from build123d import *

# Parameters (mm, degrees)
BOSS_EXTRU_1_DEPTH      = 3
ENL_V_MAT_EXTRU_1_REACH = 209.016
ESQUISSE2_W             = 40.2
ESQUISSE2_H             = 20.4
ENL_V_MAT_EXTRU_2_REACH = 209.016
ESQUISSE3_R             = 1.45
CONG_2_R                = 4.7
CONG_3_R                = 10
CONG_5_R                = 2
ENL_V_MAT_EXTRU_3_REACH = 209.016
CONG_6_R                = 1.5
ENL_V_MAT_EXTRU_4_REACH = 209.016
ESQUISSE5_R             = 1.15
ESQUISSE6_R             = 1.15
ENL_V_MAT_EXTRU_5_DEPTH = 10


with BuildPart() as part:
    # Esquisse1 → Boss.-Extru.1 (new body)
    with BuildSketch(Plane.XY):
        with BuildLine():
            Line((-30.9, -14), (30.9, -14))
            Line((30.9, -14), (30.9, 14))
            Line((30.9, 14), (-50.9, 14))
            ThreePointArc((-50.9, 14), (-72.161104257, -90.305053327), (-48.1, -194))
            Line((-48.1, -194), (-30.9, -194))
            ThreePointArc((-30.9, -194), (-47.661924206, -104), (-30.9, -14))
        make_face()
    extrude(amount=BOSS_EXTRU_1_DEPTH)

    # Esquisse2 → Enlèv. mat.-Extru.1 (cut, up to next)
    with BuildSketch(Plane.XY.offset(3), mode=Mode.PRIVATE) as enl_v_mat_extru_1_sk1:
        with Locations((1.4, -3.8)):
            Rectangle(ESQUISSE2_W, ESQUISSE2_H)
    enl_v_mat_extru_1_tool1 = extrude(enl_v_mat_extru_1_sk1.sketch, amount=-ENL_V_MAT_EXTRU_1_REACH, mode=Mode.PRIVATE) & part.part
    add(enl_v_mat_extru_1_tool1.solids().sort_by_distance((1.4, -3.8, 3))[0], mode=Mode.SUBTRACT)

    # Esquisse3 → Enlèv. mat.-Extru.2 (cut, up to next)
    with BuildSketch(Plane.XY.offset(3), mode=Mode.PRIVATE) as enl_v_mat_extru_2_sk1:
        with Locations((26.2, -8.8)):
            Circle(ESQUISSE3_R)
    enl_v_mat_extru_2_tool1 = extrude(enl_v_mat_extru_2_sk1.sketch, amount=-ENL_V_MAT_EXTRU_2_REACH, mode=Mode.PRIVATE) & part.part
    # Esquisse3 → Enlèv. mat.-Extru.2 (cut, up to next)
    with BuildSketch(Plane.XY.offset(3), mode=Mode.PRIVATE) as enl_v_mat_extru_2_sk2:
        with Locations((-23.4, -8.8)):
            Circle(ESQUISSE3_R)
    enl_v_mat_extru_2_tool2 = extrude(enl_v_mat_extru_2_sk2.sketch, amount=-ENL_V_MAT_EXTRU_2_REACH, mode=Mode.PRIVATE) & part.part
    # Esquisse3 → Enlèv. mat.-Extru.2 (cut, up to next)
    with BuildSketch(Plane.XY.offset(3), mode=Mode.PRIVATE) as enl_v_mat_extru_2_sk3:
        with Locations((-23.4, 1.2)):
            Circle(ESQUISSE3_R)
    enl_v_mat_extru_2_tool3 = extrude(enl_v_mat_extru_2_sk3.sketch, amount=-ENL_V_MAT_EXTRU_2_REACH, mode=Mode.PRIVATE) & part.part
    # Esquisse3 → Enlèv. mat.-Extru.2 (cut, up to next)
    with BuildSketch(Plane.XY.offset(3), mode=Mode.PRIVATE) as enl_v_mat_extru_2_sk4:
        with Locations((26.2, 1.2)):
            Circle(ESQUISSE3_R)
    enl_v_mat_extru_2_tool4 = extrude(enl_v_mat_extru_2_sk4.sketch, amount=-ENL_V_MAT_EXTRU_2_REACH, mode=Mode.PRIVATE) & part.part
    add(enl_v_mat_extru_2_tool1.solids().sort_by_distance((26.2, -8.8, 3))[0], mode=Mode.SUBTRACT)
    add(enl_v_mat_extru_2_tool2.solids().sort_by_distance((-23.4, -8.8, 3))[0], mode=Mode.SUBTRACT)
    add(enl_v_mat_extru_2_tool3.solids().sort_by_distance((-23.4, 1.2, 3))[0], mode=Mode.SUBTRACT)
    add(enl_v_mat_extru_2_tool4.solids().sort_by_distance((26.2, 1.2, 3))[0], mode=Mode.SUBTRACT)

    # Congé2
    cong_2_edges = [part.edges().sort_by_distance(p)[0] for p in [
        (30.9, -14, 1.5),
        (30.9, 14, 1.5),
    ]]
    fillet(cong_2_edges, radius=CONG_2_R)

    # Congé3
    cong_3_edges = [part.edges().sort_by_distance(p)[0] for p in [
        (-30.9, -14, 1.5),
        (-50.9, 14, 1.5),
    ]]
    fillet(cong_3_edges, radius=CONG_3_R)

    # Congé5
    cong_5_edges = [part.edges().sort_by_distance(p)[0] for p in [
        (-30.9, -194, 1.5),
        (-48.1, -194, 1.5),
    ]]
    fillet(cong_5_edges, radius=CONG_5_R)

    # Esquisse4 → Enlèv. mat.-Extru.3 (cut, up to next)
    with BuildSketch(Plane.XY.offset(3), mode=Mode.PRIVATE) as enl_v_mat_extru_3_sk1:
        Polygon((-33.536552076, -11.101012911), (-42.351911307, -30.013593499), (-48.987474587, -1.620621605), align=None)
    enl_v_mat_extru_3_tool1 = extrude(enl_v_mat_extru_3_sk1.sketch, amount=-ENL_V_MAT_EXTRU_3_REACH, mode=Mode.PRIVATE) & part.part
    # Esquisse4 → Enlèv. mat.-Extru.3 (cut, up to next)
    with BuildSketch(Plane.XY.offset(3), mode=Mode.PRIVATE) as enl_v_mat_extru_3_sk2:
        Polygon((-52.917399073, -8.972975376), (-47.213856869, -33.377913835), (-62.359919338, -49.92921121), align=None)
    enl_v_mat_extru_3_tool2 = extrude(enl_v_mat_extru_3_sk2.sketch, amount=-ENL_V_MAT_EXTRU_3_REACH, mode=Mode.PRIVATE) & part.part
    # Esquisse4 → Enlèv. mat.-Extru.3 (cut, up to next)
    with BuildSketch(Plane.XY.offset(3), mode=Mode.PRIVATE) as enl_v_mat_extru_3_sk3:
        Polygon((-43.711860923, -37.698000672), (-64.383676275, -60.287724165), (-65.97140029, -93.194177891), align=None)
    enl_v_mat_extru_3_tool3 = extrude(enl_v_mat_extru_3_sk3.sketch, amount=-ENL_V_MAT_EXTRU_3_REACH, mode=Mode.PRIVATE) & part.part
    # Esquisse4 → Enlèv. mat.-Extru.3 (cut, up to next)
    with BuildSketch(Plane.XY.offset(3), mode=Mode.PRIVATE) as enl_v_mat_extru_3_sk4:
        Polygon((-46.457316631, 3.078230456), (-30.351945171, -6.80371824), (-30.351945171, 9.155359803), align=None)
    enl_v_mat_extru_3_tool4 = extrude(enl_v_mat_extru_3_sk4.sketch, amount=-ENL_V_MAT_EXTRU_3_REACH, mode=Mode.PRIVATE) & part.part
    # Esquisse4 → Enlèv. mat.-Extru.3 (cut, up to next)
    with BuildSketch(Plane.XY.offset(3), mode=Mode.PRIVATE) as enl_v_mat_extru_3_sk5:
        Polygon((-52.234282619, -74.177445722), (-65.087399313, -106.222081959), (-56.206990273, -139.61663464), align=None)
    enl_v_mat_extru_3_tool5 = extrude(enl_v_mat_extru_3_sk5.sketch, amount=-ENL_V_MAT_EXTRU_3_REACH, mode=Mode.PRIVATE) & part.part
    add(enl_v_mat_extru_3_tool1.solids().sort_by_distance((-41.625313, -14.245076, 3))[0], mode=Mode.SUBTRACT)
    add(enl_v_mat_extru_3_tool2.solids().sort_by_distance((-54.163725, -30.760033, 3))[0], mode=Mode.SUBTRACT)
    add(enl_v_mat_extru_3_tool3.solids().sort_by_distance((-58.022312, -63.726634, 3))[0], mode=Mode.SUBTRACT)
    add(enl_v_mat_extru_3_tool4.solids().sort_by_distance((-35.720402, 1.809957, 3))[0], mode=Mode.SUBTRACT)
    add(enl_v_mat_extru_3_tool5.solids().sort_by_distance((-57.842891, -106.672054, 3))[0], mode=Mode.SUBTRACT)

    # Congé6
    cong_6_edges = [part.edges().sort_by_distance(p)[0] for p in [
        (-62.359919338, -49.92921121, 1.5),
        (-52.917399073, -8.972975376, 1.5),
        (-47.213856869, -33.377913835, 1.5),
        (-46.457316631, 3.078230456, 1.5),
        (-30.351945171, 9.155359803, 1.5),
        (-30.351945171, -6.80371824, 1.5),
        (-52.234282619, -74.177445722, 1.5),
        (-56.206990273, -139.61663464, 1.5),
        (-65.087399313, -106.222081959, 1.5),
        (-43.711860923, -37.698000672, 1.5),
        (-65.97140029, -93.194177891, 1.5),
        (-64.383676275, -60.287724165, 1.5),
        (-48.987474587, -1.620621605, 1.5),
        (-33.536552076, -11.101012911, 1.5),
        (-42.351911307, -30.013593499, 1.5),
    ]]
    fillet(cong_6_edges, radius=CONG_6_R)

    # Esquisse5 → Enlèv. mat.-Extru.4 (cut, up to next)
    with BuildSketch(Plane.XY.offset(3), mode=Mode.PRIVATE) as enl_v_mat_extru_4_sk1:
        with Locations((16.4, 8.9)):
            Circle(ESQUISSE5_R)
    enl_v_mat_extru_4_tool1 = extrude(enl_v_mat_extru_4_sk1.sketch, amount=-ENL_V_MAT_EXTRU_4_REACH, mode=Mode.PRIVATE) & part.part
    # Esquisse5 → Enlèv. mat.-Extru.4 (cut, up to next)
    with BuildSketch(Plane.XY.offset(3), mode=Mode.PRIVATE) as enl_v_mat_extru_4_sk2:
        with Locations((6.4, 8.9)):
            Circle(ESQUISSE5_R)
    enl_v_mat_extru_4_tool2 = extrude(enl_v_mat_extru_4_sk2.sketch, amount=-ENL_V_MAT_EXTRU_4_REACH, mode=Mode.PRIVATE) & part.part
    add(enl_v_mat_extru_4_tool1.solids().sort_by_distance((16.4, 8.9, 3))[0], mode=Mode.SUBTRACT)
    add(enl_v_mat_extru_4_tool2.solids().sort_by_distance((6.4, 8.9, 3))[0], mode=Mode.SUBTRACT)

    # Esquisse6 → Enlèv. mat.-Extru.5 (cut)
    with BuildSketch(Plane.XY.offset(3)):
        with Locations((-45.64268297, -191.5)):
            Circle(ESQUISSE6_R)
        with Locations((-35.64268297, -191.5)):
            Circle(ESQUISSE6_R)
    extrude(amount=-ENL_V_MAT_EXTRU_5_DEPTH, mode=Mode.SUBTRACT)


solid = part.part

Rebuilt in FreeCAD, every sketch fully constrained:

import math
import FreeCAD as App
import Part
import Sketcher
from FreeCAD import Vector
Q = App.Units.Quantity


def edges_at(feature, points):
    """Names of the edges that pass closest to the given points."""
    edges = feature.Shape.Edges
    near = lambda p: min(range(len(edges)), key=lambda i: edges[i].distToShape(Part.Vertex(*p))[0])
    return sorted({f"Edge{near(p) + 1}" for p in points})


def add_polygon(sketch, points):
    """Adds a closed chain of lines whose ends are joined by coincident constraints."""
    first, n = sketch.GeometryCount, len(points)
    for a, b in zip(points, points[1:] + points[:1]):
        sketch.addGeometry(Part.LineSegment(App.Vector(*a, 0), App.Vector(*b, 0)), False)
    for i in range(n):
        sketch.addConstraint(Sketcher.Constraint("Coincident", first + i, 2, first + (i + 1) % n, 1))

doc = App.newDocument("Part")
params = doc.addObject("Spreadsheet::Sheet", "Params")
for row, (alias, value) in enumerate([
    ("sketch1_radius", "250 mm"),
    ("sketch1_height", "28 mm"),
    ("sketch1_width", "61.8 mm"),
    ("sketch1_width2", "81.8 mm"),
    ("sketch1_width3", "17.2 mm"),
    ("pad1_length", "3 mm"),
    ("sketch2_width", "40.2 mm"),
    ("sketch2_height", "20.4 mm"),
    ("sketch3_diameter", "2.9 mm"),
    ("sketch4_diameter", "2.9 mm"),
    ("sketch5_diameter", "2.9 mm"),
    ("sketch6_diameter", "2.9 mm"),
    ("fillet_radius", "4.7 mm"),
    ("fillet2_radius", "10 mm"),
    ("fillet3_radius", "2 mm"),
    ("fillet4_radius", "1.5 mm"),
    ("sketch12_diameter", "2.3 mm"),
    ("sketch13_diameter", "2.3 mm"),
    ("sketch14_diameter", "2.3 mm"),
    ("pocket13_length", "10 mm"),
], start=1):
    params.set(f"A{row}", alias)
    params.set(f"B{row}", "=" + value)
    params.setAlias(f"B{row}", alias)

body = doc.addObject("PartDesign::Body", "Body")

sketch1 = body.newObject("Sketcher::SketchObject", "Sketch")
sketch1.AttachmentSupport = (doc.getObject("XY_Plane"), [""])
sketch1.MapMode = "FlatFace"
sketch1.addGeometry([
    Part.LineSegment(Vector(-31, -14, 0), Vector(31, -14, 0)),
    Part.LineSegment(Vector(31, -14, 0), Vector(31, 14, 0)),
    Part.LineSegment(Vector(31, 14, 0), Vector(-51, 14, 0)),
    Part.ArcOfCircle(Part.Circle(Vector(178, -87, 0), Vector(0, 0, 1), 250), math.radians(156), math.radians(205)),
    Part.LineSegment(Vector(-48, -194, 0), Vector(-31, -194, 0)),
    Part.ArcOfCircle(Part.Circle(Vector(202, -104, 0), Vector(0, 0, 1), 250), math.radians(159), math.radians(201)),
], False)
sketch1.addConstraint([
    Sketcher.Constraint("Coincident", 0, 2, 1, 1),
    Sketcher.Constraint("Coincident", 1, 2, 2, 1),
    Sketcher.Constraint("Coincident", 2, 2, 3, 1),
    Sketcher.Constraint("Coincident", 3, 2, 4, 1),
    Sketcher.Constraint("Coincident", 4, 2, 5, 2),
    Sketcher.Constraint("Coincident", 5, 1, 0, 1),
    Sketcher.Constraint("Horizontal", 0),
    Sketcher.Constraint("Vertical", 1),
    Sketcher.Constraint("Horizontal", 2),
    Sketcher.Constraint("Horizontal", 4),
    Sketcher.Constraint("Equal", 3, 5),
    Sketcher.Constraint("Symmetric", 1, 2, 5, 1, -1, 1),
    Sketcher.Constraint("Vertical", 4, 2, 5, 1),
    Sketcher.Constraint("Radius", 3, Q("250 mm")),
    Sketcher.Constraint("DistanceY", 1, 1, 1, 2, Q("28 mm")),
    Sketcher.Constraint("DistanceX", 0, 1, 0, 2, Q("61.8 mm")),
    Sketcher.Constraint("DistanceX", 2, 2, 2, 1, Q("81.8 mm")),
    Sketcher.Constraint("DistanceX", 4, 1, 4, 2, Q("17.2 mm")),
    Sketcher.Constraint("DistanceY", 5, 3, -1, 1, Q("104 mm")),
])
sketch1.setExpression("Constraints[13]", "Params.sketch1_radius")
sketch1.setExpression("Constraints[14]", "Params.sketch1_height")
sketch1.setExpression("Constraints[15]", "Params.sketch1_width")
sketch1.setExpression("Constraints[16]", "Params.sketch1_width2")
sketch1.setExpression("Constraints[17]", "Params.sketch1_width3")
pad1 = body.newObject("PartDesign::Pad", "Pad")
pad1.Profile = sketch1
pad1.setExpression("Length", "Params.pad1_length")

sketch2 = body.newObject("Sketcher::SketchObject", "Sketch001")
sketch2.AttachmentSupport = (doc.getObject("XY_Plane"), [""])
sketch2.MapMode = "FlatFace"
sketch2.AttachmentOffset = App.Placement(Vector(0, 0, 3), App.Rotation())
add_polygon(sketch2, [(-19, 6), (-19, -14), (22, -14), (22, 6)])
sketch2.addConstraint([
    Sketcher.Constraint("Vertical", 0),
    Sketcher.Constraint("Horizontal", 1),
    Sketcher.Constraint("Vertical", 2),
    Sketcher.Constraint("Horizontal", 3),
    Sketcher.Constraint("DistanceX", 1, 1, 1, 2, Q("40.2 mm")),
    Sketcher.Constraint("DistanceY", 0, 2, 0, 1, Q("20.4 mm")),
    Sketcher.Constraint("DistanceY", 0, 2, -1, 1, Q("14 mm")),
    Sketcher.Constraint("DistanceX", 0, 2, -1, 1, Q("18.7 mm")),
])
sketch2.setExpression("Constraints[8]", "Params.sketch2_width")
sketch2.setExpression("Constraints[9]", "Params.sketch2_height")
pocket1 = body.newObject("PartDesign::Pocket", "Pocket")
pocket1.Profile = sketch2
pocket1.Type = "UpToFirst"

sketch3 = body.newObject("Sketcher::SketchObject", "Sketch002")
sketch3.AttachmentSupport = (doc.getObject("XY_Plane"), [""])
sketch3.MapMode = "FlatFace"
sketch3.AttachmentOffset = App.Placement(Vector(0, 0, 3), App.Rotation())
sketch3.addGeometry(Part.Circle(Vector(26.2, -8.8, 0), Vector(0, 0, 1), 1.4), False)
sketch3.addConstraint([
    Sketcher.Constraint("Diameter", 0, Q("2.9 mm")),
    Sketcher.Constraint("DistanceX", -1, 1, 0, 3, Q("26.2 mm")),
    Sketcher.Constraint("DistanceY", 0, 3, -1, 1, Q("8.8 mm")),
])
sketch3.setExpression("Constraints[0]", "Params.sketch3_diameter")
pocket2 = body.newObject("PartDesign::Pocket", "Pocket001")
pocket2.Profile = sketch3
pocket2.Type = "UpToFirst"

sketch4 = body.newObject("Sketcher::SketchObject", "Sketch003")
sketch4.AttachmentSupport = (doc.getObject("XY_Plane"), [""])
sketch4.MapMode = "FlatFace"
sketch4.AttachmentOffset = App.Placement(Vector(0, 0, 3), App.Rotation())
sketch4.addGeometry(Part.Circle(Vector(-23.4, -8.8, 0), Vector(0, 0, 1), 1.4), False)
sketch4.addConstraint([
    Sketcher.Constraint("Diameter", 0, Q("2.9 mm")),
    Sketcher.Constraint("DistanceX", 0, 3, -1, 1, Q("23.4 mm")),
    Sketcher.Constraint("DistanceY", 0, 3, -1, 1, Q("8.8 mm")),
])
sketch4.setExpression("Constraints[0]", "Params.sketch4_diameter")
pocket3 = body.newObject("PartDesign::Pocket", "Pocket002")
pocket3.Profile = sketch4
pocket3.Type = "UpToFirst"

sketch5 = body.newObject("Sketcher::SketchObject", "Sketch004")
sketch5.AttachmentSupport = (doc.getObject("XY_Plane"), [""])
sketch5.MapMode = "FlatFace"
sketch5.AttachmentOffset = App.Placement(Vector(0, 0, 3), App.Rotation())
sketch5.addGeometry(Part.Circle(Vector(-23.4, 1.2, 0), Vector(0, 0, 1), 1.4), False)
sketch5.addConstraint([
    Sketcher.Constraint("Diameter", 0, Q("2.9 mm")),
    Sketcher.Constraint("DistanceX", 0, 3, -1, 1, Q("23.4 mm")),
    Sketcher.Constraint("DistanceY", -1, 1, 0, 3, Q("1.2 mm")),
])
sketch5.setExpression("Constraints[0]", "Params.sketch5_diameter")
pocket4 = body.newObject("PartDesign::Pocket", "Pocket003")
pocket4.Profile = sketch5
pocket4.Type = "UpToFirst"

sketch6 = body.newObject("Sketcher::SketchObject", "Sketch005")
sketch6.AttachmentSupport = (doc.getObject("XY_Plane"), [""])
sketch6.MapMode = "FlatFace"
sketch6.AttachmentOffset = App.Placement(Vector(0, 0, 3), App.Rotation())
sketch6.addGeometry(Part.Circle(Vector(26.2, 1.2, 0), Vector(0, 0, 1), 1.4), False)
sketch6.addConstraint([
    Sketcher.Constraint("Diameter", 0, Q("2.9 mm")),
    Sketcher.Constraint("DistanceX", -1, 1, 0, 3, Q("26.2 mm")),
    Sketcher.Constraint("DistanceY", -1, 1, 0, 3, Q("1.2 mm")),
])
sketch6.setExpression("Constraints[0]", "Params.sketch6_diameter")
pocket5 = body.newObject("PartDesign::Pocket", "Pocket004")
pocket5.Profile = sketch6
pocket5.Type = "UpToFirst"
doc.recompute()

fillet = body.newObject("PartDesign::Fillet", "Fillet")
fillet.Base = (pocket5, edges_at(pocket5, [(30.9, -14, 1.5), (30.9, 14, 1.5)]))
fillet.setExpression("Radius", "Params.fillet_radius")
doc.recompute()

fillet2 = body.newObject("PartDesign::Fillet", "Fillet001")
fillet2.Base = (fillet, edges_at(fillet, [(-30.9, -14, 1.5), (-50.9, 14, 1.5)]))
fillet2.setExpression("Radius", "Params.fillet2_radius")
doc.recompute()

fillet3 = body.newObject("PartDesign::Fillet", "Fillet002")
fillet3.Base = (fillet2, edges_at(fillet2, [(-30.9, -194, 1.5), (-48.1, -194, 1.5)]))
fillet3.setExpression("Radius", "Params.fillet3_radius")

sketch7 = body.newObject("Sketcher::SketchObject", "Sketch006")
sketch7.AttachmentSupport = (doc.getObject("XY_Plane"), [""])
sketch7.MapMode = "FlatFace"
sketch7.AttachmentOffset = App.Placement(Vector(0, 0, 3), App.Rotation())
add_polygon(sketch7, [(-42, -30), (-34, -11), (-49, -2)])
sketch7.addConstraint([
    Sketcher.Constraint("Distance", 0, Q("20.866151 mm")),
    Sketcher.Constraint("Distance", 1, Q("18.127571 mm")),
    Sketcher.Constraint("DistanceY", 1, 2, -1, 1, Q("1.620622 mm")),
    Sketcher.Constraint("DistanceX", 2, 2, -1, 1, Q("42.351911 mm")),
    Sketcher.Constraint("DistanceY", 0, 2, 1, 2, Q("9.480391 mm")),
    Sketcher.Constraint("DistanceX", 2, 2, 0, 2, Q("8.815359 mm")),
])
pocket6 = body.newObject("PartDesign::Pocket", "Pocket005")
pocket6.Profile = sketch7
pocket6.Type = "UpToFirst"

sketch8 = body.newObject("Sketcher::SketchObject", "Sketch007")
sketch8.AttachmentSupport = (doc.getObject("XY_Plane"), [""])
sketch8.MapMode = "FlatFace"
sketch8.AttachmentOffset = App.Placement(Vector(0, 0, 3), App.Rotation())
add_polygon(sketch8, [(-47, -33), (-53, -9), (-62, -50)])
sketch8.addConstraint([
    Sketcher.Constraint("DistanceX", 0, 2, -1, 1, Q("52.917399 mm")),
    Sketcher.Constraint("Distance", 0, Q("25.06255 mm")),
    Sketcher.Constraint("DistanceX", 1, 2, -1, 1, Q("62.359919 mm")),
    Sketcher.Constraint("DistanceY", 1, 2, -1, 1, Q("49.929211 mm")),
    Sketcher.Constraint("DistanceY", 2, 2, 0, 2, Q("24.404938 mm")),
    Sketcher.Constraint("Distance", 1, Q("42.030637 mm")),
])
pocket7 = body.newObject("PartDesign::Pocket", "Pocket006")
pocket7.Profile = sketch8
pocket7.Type = "UpToFirst"

sketch9 = body.newObject("Sketcher::SketchObject", "Sketch008")
sketch9.AttachmentSupport = (doc.getObject("XY_Plane"), [""])
sketch9.MapMode = "FlatFace"
sketch9.AttachmentOffset = App.Placement(Vector(0, 0, 3), App.Rotation())
add_polygon(sketch9, [(-44, -38), (-64, -60), (-66, -93)])
sketch9.addConstraint([
    Sketcher.Constraint("DistanceY", 2, 2, -1, 1, Q("37.698001 mm")),
    Sketcher.Constraint("DistanceX", 1, 2, -1, 1, Q("65.9714 mm")),
    Sketcher.Constraint("Distance", 2, Q("59.793919 mm")),
    Sketcher.Constraint("DistanceX", 2, 2, -1, 1, Q("43.711861 mm")),
    Sketcher.Constraint("Distance", 0, Q("30.620574 mm")),
    Sketcher.Constraint("Distance", 1, Q("32.944735 mm")),
])
pocket8 = body.newObject("PartDesign::Pocket", "Pocket007")
pocket8.Profile = sketch9
pocket8.Type = "UpToFirst"

sketch10 = body.newObject("Sketcher::SketchObject", "Sketch009")
sketch10.AttachmentSupport = (doc.getObject("XY_Plane"), [""])
sketch10.MapMode = "FlatFace"
sketch10.AttachmentOffset = App.Placement(Vector(0, 0, 3), App.Rotation())
add_polygon(sketch10, [(-46, 3), (-30, -7), (-30, 9)])
sketch10.addConstraint([
    Sketcher.Constraint("Vertical", 1),
    Sketcher.Constraint("DistanceY", 1, 1, 1, 2, Q("15.959078 mm")),
    Sketcher.Constraint("DistanceY", 0, 2, -1, 1, Q("6.803718 mm")),
    Sketcher.Constraint("DistanceY", -1, 1, 2, 2, Q("3.07823 mm")),
    Sketcher.Constraint("DistanceX", 2, 2, 1, 2, Q("16.105371 mm")),
    Sketcher.Constraint("DistanceX", 0, 2, -1, 1, Q("30.351945 mm")),
])
pocket9 = body.newObject("PartDesign::Pocket", "Pocket008")
pocket9.Profile = sketch10
pocket9.Type = "UpToFirst"

sketch11 = body.newObject("Sketcher::SketchObject", "Sketch010")
sketch11.AttachmentSupport = (doc.getObject("XY_Plane"), [""])
sketch11.MapMode = "FlatFace"
sketch11.AttachmentOffset = App.Placement(Vector(0, 0, 3), App.Rotation())
add_polygon(sketch11, [(-52, -74), (-65, -106), (-56, -140)])
sketch11.addConstraint([
    Sketcher.Constraint("DistanceX", 0, 2, -1, 1, Q("65.087399 mm")),
    Sketcher.Constraint("Distance", 0, Q("34.526241 mm")),
    Sketcher.Constraint("Distance", 1, Q("34.555142 mm")),
    Sketcher.Constraint("DistanceY", 0, 2, -1, 1, Q("106.222082 mm")),
    Sketcher.Constraint("DistanceX", 1, 2, -1, 1, Q("56.20699 mm")),
    Sketcher.Constraint("DistanceY", 1, 2, 2, 2, Q("65.439189 mm")),
])
pocket10 = body.newObject("PartDesign::Pocket", "Pocket009")
pocket10.Profile = sketch11
pocket10.Type = "UpToFirst"
doc.recompute()

fillet4 = body.newObject("PartDesign::Fillet", "Fillet003")
fillet4.Base = (pocket10, edges_at(pocket10, [
    (-62.36, -49.929, 1.5),
    (-52.917, -8.973, 1.5),
    (-47.214, -33.378, 1.5),
    (-46.457, 3.078, 1.5),
    (-30.352, 9.155, 1.5),
    (-30.352, -6.804, 1.5),
    (-52.234, -74.177, 1.5),
    (-56.207, -139.617, 1.5),
    (-65.087, -106.222, 1.5),
    (-43.712, -37.698, 1.5),
    (-65.971, -93.194, 1.5),
    (-64.384, -60.288, 1.5),
    (-48.987, -1.621, 1.5),
    (-33.537, -11.101, 1.5),
    (-42.352, -30.014, 1.5),
]))
fillet4.setExpression("Radius", "Params.fillet4_radius")

sketch12 = body.newObject("Sketcher::SketchObject", "Sketch011")
sketch12.AttachmentSupport = (doc.getObject("XY_Plane"), [""])
sketch12.MapMode = "FlatFace"
sketch12.AttachmentOffset = App.Placement(Vector(0, 0, 3), App.Rotation())
sketch12.addGeometry(Part.Circle(Vector(16.4, 8.9, 0), Vector(0, 0, 1), 1.1), False)
sketch12.addConstraint([
    Sketcher.Constraint("Diameter", 0, Q("2.3 mm")),
    Sketcher.Constraint("DistanceX", -1, 1, 0, 3, Q("16.4 mm")),
    Sketcher.Constraint("DistanceY", -1, 1, 0, 3, Q("8.9 mm")),
])
sketch12.setExpression("Constraints[0]", "Params.sketch12_diameter")
pocket11 = body.newObject("PartDesign::Pocket", "Pocket010")
pocket11.Profile = sketch12
pocket11.Type = "UpToFirst"

sketch13 = body.newObject("Sketcher::SketchObject", "Sketch012")
sketch13.AttachmentSupport = (doc.getObject("XY_Plane"), [""])
sketch13.MapMode = "FlatFace"
sketch13.AttachmentOffset = App.Placement(Vector(0, 0, 3), App.Rotation())
sketch13.addGeometry(Part.Circle(Vector(6.4, 8.9, 0), Vector(0, 0, 1), 1.1), False)
sketch13.addConstraint([
    Sketcher.Constraint("Diameter", 0, Q("2.3 mm")),
    Sketcher.Constraint("DistanceX", -1, 1, 0, 3, Q("6.4 mm")),
    Sketcher.Constraint("DistanceY", -1, 1, 0, 3, Q("8.9 mm")),
])
sketch13.setExpression("Constraints[0]", "Params.sketch13_diameter")
pocket12 = body.newObject("PartDesign::Pocket", "Pocket011")
pocket12.Profile = sketch13
pocket12.Type = "UpToFirst"

sketch14 = body.newObject("Sketcher::SketchObject", "Sketch013")
sketch14.AttachmentSupport = (doc.getObject("XY_Plane"), [""])
sketch14.MapMode = "FlatFace"
sketch14.AttachmentOffset = App.Placement(Vector(0, 0, 3), App.Rotation())
sketch14.addGeometry([
    Part.Circle(Vector(-45.6, -191.5, 0), Vector(0, 0, 1), 1.1),
    Part.Circle(Vector(-35.6, -191.5, 0), Vector(0, 0, 1), 1.1),
], False)
sketch14.addConstraint([
    Sketcher.Constraint("Equal", 0, 1),
    Sketcher.Constraint("Horizontal", 0, 3, 1, 3),
    Sketcher.Constraint("Diameter", 0, Q("2.3 mm")),
    Sketcher.Constraint("DistanceX", 0, 3, 1, 3, Q("10 mm")),
    Sketcher.Constraint("DistanceY", 0, 3, -1, 1, Q("191.5 mm")),
    Sketcher.Constraint("DistanceX", 0, 3, -1, 1, Q("45.642683 mm")),
])
sketch14.setExpression("Constraints[2]", "Params.sketch14_diameter")
pocket13 = body.newObject("PartDesign::Pocket", "Pocket012")
pocket13.Profile = sketch14
pocket13.setExpression("Length", "Params.pocket13_length")

doc.recompute()
